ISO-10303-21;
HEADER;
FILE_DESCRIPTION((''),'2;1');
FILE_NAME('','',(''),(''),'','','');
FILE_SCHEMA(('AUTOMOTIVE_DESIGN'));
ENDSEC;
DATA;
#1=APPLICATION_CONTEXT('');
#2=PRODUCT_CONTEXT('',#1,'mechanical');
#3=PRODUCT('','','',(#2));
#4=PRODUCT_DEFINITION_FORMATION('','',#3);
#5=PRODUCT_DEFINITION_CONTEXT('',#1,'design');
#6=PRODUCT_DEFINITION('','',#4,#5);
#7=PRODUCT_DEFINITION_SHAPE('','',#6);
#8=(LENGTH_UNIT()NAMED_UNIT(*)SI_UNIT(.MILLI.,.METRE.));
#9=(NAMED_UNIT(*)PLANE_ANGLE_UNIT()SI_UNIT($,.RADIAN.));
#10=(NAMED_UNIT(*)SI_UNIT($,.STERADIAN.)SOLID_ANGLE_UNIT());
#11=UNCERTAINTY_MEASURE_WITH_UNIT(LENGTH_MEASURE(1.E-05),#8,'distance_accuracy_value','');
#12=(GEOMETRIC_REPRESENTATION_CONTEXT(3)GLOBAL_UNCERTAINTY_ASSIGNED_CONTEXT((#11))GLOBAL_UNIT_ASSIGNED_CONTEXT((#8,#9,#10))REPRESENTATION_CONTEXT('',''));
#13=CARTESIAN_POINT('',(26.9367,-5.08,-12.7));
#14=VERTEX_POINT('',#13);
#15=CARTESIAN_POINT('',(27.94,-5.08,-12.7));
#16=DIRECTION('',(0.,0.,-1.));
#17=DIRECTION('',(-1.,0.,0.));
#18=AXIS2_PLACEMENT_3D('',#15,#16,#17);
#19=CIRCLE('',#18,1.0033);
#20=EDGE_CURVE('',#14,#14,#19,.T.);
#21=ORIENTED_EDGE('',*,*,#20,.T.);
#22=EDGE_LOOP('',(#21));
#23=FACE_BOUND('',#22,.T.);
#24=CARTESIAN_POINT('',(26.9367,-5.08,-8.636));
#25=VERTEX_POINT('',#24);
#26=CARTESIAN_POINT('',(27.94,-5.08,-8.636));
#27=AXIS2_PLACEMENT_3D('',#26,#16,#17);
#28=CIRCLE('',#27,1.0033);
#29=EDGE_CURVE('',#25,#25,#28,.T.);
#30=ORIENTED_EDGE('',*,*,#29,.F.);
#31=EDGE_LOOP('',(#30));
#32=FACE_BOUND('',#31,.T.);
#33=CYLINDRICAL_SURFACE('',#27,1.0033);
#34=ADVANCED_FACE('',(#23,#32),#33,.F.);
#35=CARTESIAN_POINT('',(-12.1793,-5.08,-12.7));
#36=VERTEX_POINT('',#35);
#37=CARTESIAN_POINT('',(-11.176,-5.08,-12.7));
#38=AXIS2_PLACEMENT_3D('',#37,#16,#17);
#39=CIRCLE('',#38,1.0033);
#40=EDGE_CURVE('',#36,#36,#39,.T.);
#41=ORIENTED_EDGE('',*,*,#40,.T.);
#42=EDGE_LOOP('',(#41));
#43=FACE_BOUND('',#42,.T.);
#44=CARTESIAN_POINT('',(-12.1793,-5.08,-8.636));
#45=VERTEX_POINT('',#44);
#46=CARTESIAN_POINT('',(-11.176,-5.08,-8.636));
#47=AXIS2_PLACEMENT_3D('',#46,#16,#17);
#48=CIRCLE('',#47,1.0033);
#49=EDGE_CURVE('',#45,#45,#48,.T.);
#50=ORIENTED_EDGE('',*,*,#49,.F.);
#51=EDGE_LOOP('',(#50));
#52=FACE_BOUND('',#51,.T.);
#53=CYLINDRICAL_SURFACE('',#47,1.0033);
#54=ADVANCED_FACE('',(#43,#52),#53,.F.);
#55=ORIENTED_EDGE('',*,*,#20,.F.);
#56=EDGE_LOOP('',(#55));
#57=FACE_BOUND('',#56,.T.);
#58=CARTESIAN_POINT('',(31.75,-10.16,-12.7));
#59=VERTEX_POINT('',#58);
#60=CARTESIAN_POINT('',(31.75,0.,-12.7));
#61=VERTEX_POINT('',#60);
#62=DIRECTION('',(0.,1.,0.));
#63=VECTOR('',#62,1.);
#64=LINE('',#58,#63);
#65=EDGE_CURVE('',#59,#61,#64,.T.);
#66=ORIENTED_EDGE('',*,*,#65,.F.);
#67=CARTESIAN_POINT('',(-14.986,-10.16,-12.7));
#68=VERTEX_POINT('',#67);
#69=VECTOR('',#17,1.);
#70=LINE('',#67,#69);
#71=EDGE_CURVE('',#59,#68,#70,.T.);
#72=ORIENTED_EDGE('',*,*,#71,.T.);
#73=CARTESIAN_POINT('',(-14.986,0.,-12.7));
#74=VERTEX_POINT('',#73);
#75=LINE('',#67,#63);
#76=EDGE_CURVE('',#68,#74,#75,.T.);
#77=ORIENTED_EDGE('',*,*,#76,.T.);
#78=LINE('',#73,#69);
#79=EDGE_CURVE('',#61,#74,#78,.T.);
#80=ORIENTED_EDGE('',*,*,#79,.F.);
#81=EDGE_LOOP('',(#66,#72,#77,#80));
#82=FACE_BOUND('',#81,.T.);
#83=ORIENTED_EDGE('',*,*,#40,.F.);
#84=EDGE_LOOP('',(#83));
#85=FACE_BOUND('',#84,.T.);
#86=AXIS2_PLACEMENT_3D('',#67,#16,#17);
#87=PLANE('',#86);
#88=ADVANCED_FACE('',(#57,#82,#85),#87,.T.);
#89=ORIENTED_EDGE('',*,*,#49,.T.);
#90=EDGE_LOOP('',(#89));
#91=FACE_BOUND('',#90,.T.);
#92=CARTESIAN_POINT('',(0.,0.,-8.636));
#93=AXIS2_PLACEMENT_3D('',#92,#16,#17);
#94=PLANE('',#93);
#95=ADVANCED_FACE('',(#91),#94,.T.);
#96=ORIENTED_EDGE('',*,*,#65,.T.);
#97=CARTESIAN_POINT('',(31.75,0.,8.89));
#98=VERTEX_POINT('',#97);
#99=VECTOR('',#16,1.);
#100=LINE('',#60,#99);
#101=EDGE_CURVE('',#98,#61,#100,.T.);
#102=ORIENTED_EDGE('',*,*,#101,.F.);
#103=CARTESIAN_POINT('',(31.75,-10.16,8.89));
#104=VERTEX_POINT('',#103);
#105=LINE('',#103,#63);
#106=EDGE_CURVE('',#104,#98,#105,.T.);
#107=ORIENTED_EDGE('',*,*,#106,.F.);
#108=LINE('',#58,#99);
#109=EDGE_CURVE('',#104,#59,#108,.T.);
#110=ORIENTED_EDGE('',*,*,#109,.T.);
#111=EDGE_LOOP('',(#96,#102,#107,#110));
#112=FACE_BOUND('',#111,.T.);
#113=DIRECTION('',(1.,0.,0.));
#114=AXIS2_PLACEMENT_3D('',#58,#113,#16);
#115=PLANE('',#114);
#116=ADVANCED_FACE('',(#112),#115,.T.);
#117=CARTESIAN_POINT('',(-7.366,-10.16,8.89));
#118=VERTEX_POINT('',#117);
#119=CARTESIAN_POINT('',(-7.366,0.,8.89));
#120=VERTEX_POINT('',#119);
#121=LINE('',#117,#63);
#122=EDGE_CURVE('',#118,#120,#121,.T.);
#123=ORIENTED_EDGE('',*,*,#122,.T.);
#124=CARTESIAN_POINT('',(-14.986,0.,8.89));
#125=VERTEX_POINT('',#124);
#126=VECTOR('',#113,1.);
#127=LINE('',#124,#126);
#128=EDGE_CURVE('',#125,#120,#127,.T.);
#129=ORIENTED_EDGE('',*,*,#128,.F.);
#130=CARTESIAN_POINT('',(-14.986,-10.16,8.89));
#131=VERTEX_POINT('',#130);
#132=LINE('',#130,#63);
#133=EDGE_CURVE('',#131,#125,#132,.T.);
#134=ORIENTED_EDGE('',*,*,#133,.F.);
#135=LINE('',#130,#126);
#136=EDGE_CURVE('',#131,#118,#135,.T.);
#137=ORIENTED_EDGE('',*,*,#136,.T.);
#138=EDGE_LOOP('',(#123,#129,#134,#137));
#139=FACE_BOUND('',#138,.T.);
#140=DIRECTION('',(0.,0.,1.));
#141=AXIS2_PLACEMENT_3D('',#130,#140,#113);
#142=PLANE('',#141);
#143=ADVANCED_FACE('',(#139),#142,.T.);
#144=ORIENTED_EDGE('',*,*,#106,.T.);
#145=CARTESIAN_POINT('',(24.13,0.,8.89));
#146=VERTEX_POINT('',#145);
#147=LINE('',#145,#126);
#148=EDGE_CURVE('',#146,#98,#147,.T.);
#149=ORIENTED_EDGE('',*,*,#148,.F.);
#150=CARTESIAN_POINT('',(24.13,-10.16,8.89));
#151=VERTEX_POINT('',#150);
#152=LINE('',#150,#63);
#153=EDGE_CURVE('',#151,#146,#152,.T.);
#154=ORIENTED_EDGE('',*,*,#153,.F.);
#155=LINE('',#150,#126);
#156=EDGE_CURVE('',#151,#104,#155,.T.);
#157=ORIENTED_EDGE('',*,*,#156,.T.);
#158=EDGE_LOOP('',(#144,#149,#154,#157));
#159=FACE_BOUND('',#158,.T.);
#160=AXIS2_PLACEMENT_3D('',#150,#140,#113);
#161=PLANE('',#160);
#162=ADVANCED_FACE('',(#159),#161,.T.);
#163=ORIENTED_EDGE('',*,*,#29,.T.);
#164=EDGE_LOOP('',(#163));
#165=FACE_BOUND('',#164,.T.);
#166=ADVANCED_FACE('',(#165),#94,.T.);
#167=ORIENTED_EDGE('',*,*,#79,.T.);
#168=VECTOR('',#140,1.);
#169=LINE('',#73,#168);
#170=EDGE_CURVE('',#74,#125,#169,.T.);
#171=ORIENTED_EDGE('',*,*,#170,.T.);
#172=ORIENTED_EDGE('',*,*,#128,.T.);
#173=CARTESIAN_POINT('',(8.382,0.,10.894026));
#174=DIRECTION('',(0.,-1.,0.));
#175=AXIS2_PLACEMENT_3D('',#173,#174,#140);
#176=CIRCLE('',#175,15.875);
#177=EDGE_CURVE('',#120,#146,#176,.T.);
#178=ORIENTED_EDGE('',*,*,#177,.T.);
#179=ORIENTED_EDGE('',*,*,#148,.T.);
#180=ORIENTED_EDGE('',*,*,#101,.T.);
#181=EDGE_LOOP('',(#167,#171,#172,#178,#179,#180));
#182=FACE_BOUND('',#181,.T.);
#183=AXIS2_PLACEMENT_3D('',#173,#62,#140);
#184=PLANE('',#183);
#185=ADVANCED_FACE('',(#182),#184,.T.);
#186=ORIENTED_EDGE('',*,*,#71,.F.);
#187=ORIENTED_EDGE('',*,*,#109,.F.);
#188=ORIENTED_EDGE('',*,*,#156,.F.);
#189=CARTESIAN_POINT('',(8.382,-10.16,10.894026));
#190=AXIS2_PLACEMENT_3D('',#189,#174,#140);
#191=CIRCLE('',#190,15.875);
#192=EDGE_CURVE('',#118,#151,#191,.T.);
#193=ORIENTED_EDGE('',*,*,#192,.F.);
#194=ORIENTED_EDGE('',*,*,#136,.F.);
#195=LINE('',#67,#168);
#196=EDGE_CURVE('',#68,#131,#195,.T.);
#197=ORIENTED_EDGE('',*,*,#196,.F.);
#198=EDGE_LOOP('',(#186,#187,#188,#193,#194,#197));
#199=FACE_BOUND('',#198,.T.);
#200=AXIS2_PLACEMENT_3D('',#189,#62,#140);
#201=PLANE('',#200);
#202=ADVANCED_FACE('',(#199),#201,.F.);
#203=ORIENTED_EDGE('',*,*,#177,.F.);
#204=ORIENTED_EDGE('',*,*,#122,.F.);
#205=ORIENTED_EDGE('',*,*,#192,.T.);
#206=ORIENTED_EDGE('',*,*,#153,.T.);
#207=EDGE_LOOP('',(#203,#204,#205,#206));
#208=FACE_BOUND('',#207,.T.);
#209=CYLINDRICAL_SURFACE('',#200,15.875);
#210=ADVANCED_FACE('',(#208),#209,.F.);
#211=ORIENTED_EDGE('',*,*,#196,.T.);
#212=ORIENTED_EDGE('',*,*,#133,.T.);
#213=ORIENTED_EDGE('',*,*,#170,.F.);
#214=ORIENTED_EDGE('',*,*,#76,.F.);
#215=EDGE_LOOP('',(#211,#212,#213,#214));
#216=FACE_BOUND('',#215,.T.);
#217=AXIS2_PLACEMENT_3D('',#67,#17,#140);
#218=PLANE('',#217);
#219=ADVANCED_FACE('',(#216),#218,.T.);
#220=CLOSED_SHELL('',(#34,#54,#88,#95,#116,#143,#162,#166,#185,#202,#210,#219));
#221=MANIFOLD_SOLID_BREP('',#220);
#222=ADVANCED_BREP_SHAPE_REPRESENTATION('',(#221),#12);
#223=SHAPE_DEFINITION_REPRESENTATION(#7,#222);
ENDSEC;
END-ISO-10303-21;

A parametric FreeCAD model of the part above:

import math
import FreeCAD as App
import Part
import Sketcher
from FreeCAD import Vector
Q = App.Units.Quantity

doc = App.newDocument("Part")
params = doc.addObject("Spreadsheet::Sheet", "Params")
for row, (alias, value) in enumerate([
    ("sketch1_width", "0.3 in"),
    ("sketch1_radius", "0.625 in"),
    ("sketch1_width2", "1.84 in"),
    ("sketch1_height", "0.85 in"),
    ("pad1_length", "0.4 in"),
    ("sketch2_diameter", "0.079 in"),
    ("pocket1_length", "0.16 in"),
], start=1):
    params.set(f"A{row}", alias)
    params.set(f"B{row}", "=" + value)
    params.setAlias(f"B{row}", alias)

body = doc.addObject("PartDesign::Body", "Body")

# Sketch on XZ plane
sketch1 = body.newObject("Sketcher::SketchObject", "Sketch")
sketch1.AttachmentSupport = (doc.getObject("XZ_Plane"), [""])
sketch1.MapMode = "FlatFace"
sketch1.addGeometry([
    Part.LineSegment(Vector(-14.986, 8.89, 0), Vector(-7.366, 8.89, 0)),  # 0
    Part.ArcOfCircle(Part.Circle(Vector(8.382, 10.894026, 0), Vector(0, 0, 1), 15.875), math.radians(-172.747753), math.radians(-7.252247)),  # 1
    Part.LineSegment(Vector(24.13, 8.89, 0), Vector(31.75, 8.89, 0)),  # 2
    Part.LineSegment(Vector(31.75, 8.89, 0), Vector(31.75, -12.7, 0)),  # 3
    Part.LineSegment(Vector(31.75, -12.7, 0), Vector(-14.986, -12.7, 0)),  # 4
    Part.LineSegment(Vector(-14.986, -12.7, 0), Vector(-14.986, 8.89, 0)),  # 5
], False)
sketch1.addConstraint([
    Sketcher.Constraint("Coincident", 0, 2, 1, 1),
    Sketcher.Constraint("Coincident", 1, 2, 2, 1),
    Sketcher.Constraint("Coincident", 2, 2, 3, 1),
    Sketcher.Constraint("Coincident", 3, 2, 4, 1),
    Sketcher.Constraint("Coincident", 4, 2, 5, 1),
    Sketcher.Constraint("Coincident", 5, 2, 0, 1),
    Sketcher.Constraint("Horizontal", 0),
    Sketcher.Constraint("Horizontal", 2),
    Sketcher.Constraint("Vertical", 3),
    Sketcher.Constraint("Horizontal", 4),
    Sketcher.Constraint("Vertical", 5),
    Sketcher.Constraint("Horizontal", 0, 2, 1, 2),
    Sketcher.Constraint("Equal", 0, 2),
    Sketcher.Constraint("DistanceX", 0, 1, 0, 2, Q("0.3 in")),
    Sketcher.Constraint("Radius", 1, Q("0.625 in")),
    Sketcher.Constraint("DistanceX", 4, 2, 4, 1, Q("1.84 in")),
    Sketcher.Constraint("DistanceY", 3, 2, 3, 1, Q("0.85 in")),
    Sketcher.Constraint("DistanceY", 3, 2, -1, 1, Q("0.5 in")),
    Sketcher.Constraint("DistanceX", -1, 1, 1, 3, Q("0.33 in")),
])
sketch1.setExpression("Constraints[13]", "Params.sketch1_width")
sketch1.setExpression("Constraints[14]", "Params.sketch1_radius")
sketch1.setExpression("Constraints[15]", "Params.sketch1_width2")
sketch1.setExpression("Constraints[16]", "Params.sketch1_height")
pad1 = body.newObject("PartDesign::Pad", "Pad")
pad1.Profile = sketch1
pad1.setExpression("Length", "Params.pad1_length")

# Sketch on XY plane
sketch2 = body.newObject("Sketcher::SketchObject", "Sketch001")
sketch2.AttachmentSupport = (doc.getObject("XY_Plane"), [""])
sketch2.MapMode = "FlatFace"
sketch2.AttachmentOffset = App.Placement(Vector(0, 0, -0.5 * 25.4), App.Rotation())
sketch2.addGeometry([
    Part.Circle(Vector(27.94, -5.08, 0), Vector(0, 0, 1), 1.0033),
    Part.Circle(Vector(-11.176, -5.08, 0), Vector(0, 0, 1), 1.0033),
], False)
sketch2.addConstraint([
    Sketcher.Constraint("Equal", 0, 1),
    Sketcher.Constraint("Horizontal", 0, 3, 1, 3),
    Sketcher.Constraint("Diameter", 0, Q("0.079 in")),
    Sketcher.Constraint("DistanceX", -1, 1, 0, 3, Q("1.1 in")),
    Sketcher.Constraint("DistanceY", 0, 3, -1, 1, Q("0.2 in")),
    Sketcher.Constraint("DistanceX", 1, 3, -1, 1, Q("0.44 in")),
])
sketch2.setExpression("Constraints[2]", "Params.sketch2_diameter")
pocket1 = body.newObject("PartDesign::Pocket", "Pocket")
pocket1.Profile = sketch2
pocket1.setExpression("Length", "Params.pocket1_length")
pocket1.Reversed = True

doc.recompute()
